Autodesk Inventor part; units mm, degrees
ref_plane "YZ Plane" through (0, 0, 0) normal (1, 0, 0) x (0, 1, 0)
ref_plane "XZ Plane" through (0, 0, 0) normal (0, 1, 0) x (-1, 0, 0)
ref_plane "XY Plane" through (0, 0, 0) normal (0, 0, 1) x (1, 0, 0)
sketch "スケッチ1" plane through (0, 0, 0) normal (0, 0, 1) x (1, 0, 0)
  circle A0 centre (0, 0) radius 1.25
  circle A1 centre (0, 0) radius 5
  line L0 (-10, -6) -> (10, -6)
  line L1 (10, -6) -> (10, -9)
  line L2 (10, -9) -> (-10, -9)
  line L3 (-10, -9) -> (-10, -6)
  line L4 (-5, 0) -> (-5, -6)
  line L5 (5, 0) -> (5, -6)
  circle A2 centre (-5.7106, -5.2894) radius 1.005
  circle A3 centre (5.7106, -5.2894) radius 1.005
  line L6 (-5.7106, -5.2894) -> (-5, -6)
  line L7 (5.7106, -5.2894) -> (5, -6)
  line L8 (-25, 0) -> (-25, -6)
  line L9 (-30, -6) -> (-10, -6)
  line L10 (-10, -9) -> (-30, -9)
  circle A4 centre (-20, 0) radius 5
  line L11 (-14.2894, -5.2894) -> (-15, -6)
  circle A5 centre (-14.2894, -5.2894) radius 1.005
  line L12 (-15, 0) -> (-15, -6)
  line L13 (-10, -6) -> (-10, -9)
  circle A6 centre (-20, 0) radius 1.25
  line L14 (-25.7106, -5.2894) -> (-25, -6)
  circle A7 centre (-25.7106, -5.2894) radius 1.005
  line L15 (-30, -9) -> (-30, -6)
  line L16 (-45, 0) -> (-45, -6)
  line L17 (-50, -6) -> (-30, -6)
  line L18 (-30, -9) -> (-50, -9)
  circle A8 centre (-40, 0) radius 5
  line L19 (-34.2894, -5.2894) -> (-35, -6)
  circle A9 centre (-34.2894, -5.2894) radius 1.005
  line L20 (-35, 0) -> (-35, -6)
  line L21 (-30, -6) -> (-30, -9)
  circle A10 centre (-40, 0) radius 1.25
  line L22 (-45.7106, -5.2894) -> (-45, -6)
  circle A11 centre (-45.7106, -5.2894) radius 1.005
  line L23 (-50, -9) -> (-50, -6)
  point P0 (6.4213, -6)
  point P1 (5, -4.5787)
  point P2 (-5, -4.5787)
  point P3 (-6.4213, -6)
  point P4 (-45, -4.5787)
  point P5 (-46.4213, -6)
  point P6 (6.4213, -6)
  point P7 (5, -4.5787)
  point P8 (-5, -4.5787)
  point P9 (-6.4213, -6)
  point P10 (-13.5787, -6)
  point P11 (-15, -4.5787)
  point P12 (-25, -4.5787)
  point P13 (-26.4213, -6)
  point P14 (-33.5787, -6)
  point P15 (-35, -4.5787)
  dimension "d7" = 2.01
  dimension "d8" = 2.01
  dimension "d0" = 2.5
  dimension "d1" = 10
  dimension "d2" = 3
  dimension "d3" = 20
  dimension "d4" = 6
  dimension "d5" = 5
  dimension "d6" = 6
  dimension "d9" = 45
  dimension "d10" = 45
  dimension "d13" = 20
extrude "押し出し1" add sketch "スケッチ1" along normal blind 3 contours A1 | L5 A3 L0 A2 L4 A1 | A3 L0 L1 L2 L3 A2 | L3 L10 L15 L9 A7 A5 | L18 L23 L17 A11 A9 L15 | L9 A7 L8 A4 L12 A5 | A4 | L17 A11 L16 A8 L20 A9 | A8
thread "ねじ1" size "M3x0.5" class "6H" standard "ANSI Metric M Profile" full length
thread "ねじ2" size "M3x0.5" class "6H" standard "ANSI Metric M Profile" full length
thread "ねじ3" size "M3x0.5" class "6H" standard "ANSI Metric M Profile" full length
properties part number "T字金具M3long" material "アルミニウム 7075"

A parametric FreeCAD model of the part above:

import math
import FreeCAD as App
import Part
import Sketcher
from FreeCAD import Vector

doc = App.newDocument("Part")
params = doc.addObject("Spreadsheet::Sheet", "Params")
for row, (alias, value) in enumerate([
    ("sketch1_radius", "5 mm"),
    ("sketch1_diameter", "2.5 mm"),
    ("sketch1_height", "3 mm"),
    ("pad1_length", "3 mm"),
], start=1):
    params.set(f"A{row}", alias)
    params.set(f"B{row}", "=" + value)
    params.setAlias(f"B{row}", alias)

body = doc.addObject("PartDesign::Body", "Body")

sketch1 = doc.addObject("Sketcher::SketchObject", "Sketch")
body.addObject(sketch1)
sketch1.AttachmentSupport = (doc.XY_Plane, [""])
sketch1.MapMode = "FlatFace"
sketch1.addGeometry(Part.ArcOfCircle(Part.Circle(Vector(0, 0, 0), Vector(0, 0, 1), 5), math.radians(0), math.radians(180)), False)
sketch1.addGeometry(Part.LineSegment(Vector(-5, 0, 0), Vector(-5, -4.6, 0)), False)
sketch1.addGeometry(Part.ArcOfCircle(Part.Circle(Vector(-5.7, -5.3, 0), Vector(0, 0, 1), 1), math.radians(-135), math.radians(45)), False)
sketch1.addGeometry(Part.LineSegment(Vector(-6.4, -6, 0), Vector(-13.6, -6, 0)), False)
sketch1.addGeometry(Part.ArcOfCircle(Part.Circle(Vector(-14.3, -5.3, 0), Vector(0, 0, 1), 1), math.radians(135), math.radians(315)), False)
sketch1.addGeometry(Part.LineSegment(Vector(-15, -4.6, 0), Vector(-15, 0, 0)), False)
sketch1.addGeometry(Part.ArcOfCircle(Part.Circle(Vector(-20, 0, 0), Vector(0, 0, 1), 5), math.radians(0), math.radians(180)), False)
sketch1.addGeometry(Part.LineSegment(Vector(-25, 0, 0), Vector(-25, -4.6, 0)), False)
sketch1.addGeometry(Part.ArcOfCircle(Part.Circle(Vector(-25.7, -5.3, 0), Vector(0, 0, 1), 1), math.radians(-135), math.radians(45)), False)
sketch1.addGeometry(Part.LineSegment(Vector(-26.4, -6, 0), Vector(-33.6, -6, 0)), False)
sketch1.addGeometry(Part.ArcOfCircle(Part.Circle(Vector(-34.3, -5.3, 0), Vector(0, 0, 1), 1), math.radians(135), math.radians(315)), False)
sketch1.addGeometry(Part.LineSegment(Vector(-35, -4.6, 0), Vector(-35, 0, 0)), False)
sketch1.addGeometry(Part.ArcOfCircle(Part.Circle(Vector(-40, 0, 0), Vector(0, 0, 1), 5), math.radians(0), math.radians(180)), False)
sketch1.addGeometry(Part.LineSegment(Vector(-45, 0, 0), Vector(-45, -4.6, 0)), False)
sketch1.addGeometry(Part.ArcOfCircle(Part.Circle(Vector(-45.7, -5.3, 0), Vector(0, 0, 1), 1), math.radians(-135), math.radians(45)), False)
sketch1.addGeometry(Part.LineSegment(Vector(-46.4, -6, 0), Vector(-50, -6, 0)), False)
sketch1.addGeometry(Part.LineSegment(Vector(-50, -6, 0), Vector(-50, -9, 0)), False)
sketch1.addGeometry(Part.LineSegment(Vector(-50, -9, 0), Vector(10, -9, 0)), False)
sketch1.addGeometry(Part.LineSegment(Vector(10, -9, 0), Vector(10, -6, 0)), False)
sketch1.addGeometry(Part.LineSegment(Vector(10, -6, 0), Vector(6.4, -6, 0)), False)
sketch1.addGeometry(Part.ArcOfCircle(Part.Circle(Vector(5.7, -5.3, 0), Vector(0, 0, 1), 1), math.radians(135), math.radians(315)), False)
sketch1.addGeometry(Part.LineSegment(Vector(5, -4.6, 0), Vector(5, 0, 0)), False)
sketch1.addGeometry(Part.Circle(Vector(0, 0, 0), Vector(0, 0, 1), 1.2), False)
sketch1.addGeometry(Part.Circle(Vector(-20, 0, 0), Vector(0, 0, 1), 1.2), False)
sketch1.addGeometry(Part.Circle(Vector(-40, 0, 0), Vector(0, 0, 1), 1.2), False)
sketch1.addConstraint(Sketcher.Constraint("Tangent", 0, 2, 1, 1))
sketch1.addConstraint(Sketcher.Constraint("Coincident", 1, 2, 2, 2))
sketch1.addConstraint(Sketcher.Constraint("Coincident", 2, 1, 3, 1))
sketch1.addConstraint(Sketcher.Constraint("Coincident", 3, 2, 4, 2))
sketch1.addConstraint(Sketcher.Constraint("Coincident", 4, 1, 5, 1))
sketch1.addConstraint(Sketcher.Constraint("Tangent", 5, 2, 6, 1))
sketch1.addConstraint(Sketcher.Constraint("Tangent", 6, 2, 7, 1))
sketch1.addConstraint(Sketcher.Constraint("Coincident", 7, 2, 8, 2))
sketch1.addConstraint(Sketcher.Constraint("Coincident", 8, 1, 9, 1))
sketch1.addConstraint(Sketcher.Constraint("Coincident", 9, 2, 10, 2))
sketch1.addConstraint(Sketcher.Constraint("Coincident", 10, 1, 11, 1))
sketch1.addConstraint(Sketcher.Constraint("Tangent", 11, 2, 12, 1))
sketch1.addConstraint(Sketcher.Constraint("Tangent", 12, 2, 13, 1))
sketch1.addConstraint(Sketcher.Constraint("Coincident", 13, 2, 14, 2))
sketch1.addConstraint(Sketcher.Constraint("Coincident", 14, 1, 15, 1))
sketch1.addConstraint(Sketcher.Constraint("Coincident", 15, 2, 16, 1))
sketch1.addConstraint(Sketcher.Constraint("Coincident", 16, 2, 17, 1))
sketch1.addConstraint(Sketcher.Constraint("Coincident", 17, 2, 18, 1))
sketch1.addConstraint(Sketcher.Constraint("Coincident", 18, 2, 19, 1))
sketch1.addConstraint(Sketcher.Constraint("Coincident", 19, 2, 20, 2))
sketch1.addConstraint(Sketcher.Constraint("Coincident", 20, 1, 21, 1))
sketch1.addConstraint(Sketcher.Constraint("Tangent", 21, 2, 0, 1))
sketch1.addConstraint(Sketcher.Constraint("Vertical", 1))
sketch1.addConstraint(Sketcher.Constraint("Horizontal", 3))
sketch1.addConstraint(Sketcher.Constraint("Vertical", 5))
sketch1.addConstraint(Sketcher.Constraint("Vertical", 7))
sketch1.addConstraint(Sketcher.Constraint("Horizontal", 9))
sketch1.addConstraint(Sketcher.Constraint("Vertical", 11))
sketch1.addConstraint(Sketcher.Constraint("Vertical", 13))
sketch1.addConstraint(Sketcher.Constraint("Horizontal", 15))
sketch1.addConstraint(Sketcher.Constraint("Vertical", 16))
sketch1.addConstraint(Sketcher.Constraint("Horizontal", 17))
sketch1.addConstraint(Sketcher.Constraint("Vertical", 18))
sketch1.addConstraint(Sketcher.Constraint("Horizontal", 19))
sketch1.addConstraint(Sketcher.Constraint("Vertical", 21))
sketch1.addConstraint(Sketcher.Constraint("Coincident", 0, 3, -1, 1))
sketch1.addConstraint(Sketcher.Constraint("Coincident", 22, 3, -1, 1))
sketch1.addConstraint(Sketcher.Constraint("Coincident", 23, 3, 6, 3))
sketch1.addConstraint(Sketcher.Constraint("Coincident", 24, 3, 12, 3))
sketch1.addConstraint(Sketcher.Constraint("Equal", 2, 4))
sketch1.addConstraint(Sketcher.Constraint("Equal", 0, 6))
sketch1.addConstraint(Sketcher.Constraint("Equal", 4, 8))
sketch1.addConstraint(Sketcher.Constraint("Equal", 8, 10))
sketch1.addConstraint(Sketcher.Constraint("Equal", 6, 12))
sketch1.addConstraint(Sketcher.Constraint("Equal", 10, 14))
sketch1.addConstraint(Sketcher.Constraint("Equal", 14, 20))
sketch1.addConstraint(Sketcher.Constraint("Equal", 22, 23))
sketch1.addConstraint(Sketcher.Constraint("Equal", 23, 24))
sketch1.addConstraint(Sketcher.Constraint("Symmetric", 2, 3, 20, 3, -2))
sketch1.addConstraint(Sketcher.Constraint("PointOnObject", 6, 3, -1))
sketch1.addConstraint(Sketcher.Constraint("PointOnObject", 12, 3, -1))
sketch1.addConstraint(Sketcher.Constraint("Horizontal", 2, 3, 4, 3))
sketch1.addConstraint(Sketcher.Constraint("Horizontal", 4, 3, 8, 3))
sketch1.addConstraint(Sketcher.Constraint("Horizontal", 8, 3, 10, 3))
sketch1.addConstraint(Sketcher.Constraint("Horizontal", 10, 3, 14, 3))
sketch1.addConstraint(Sketcher.Constraint("Horizontal", 1, 2, 4, 1))
sketch1.addConstraint(Sketcher.Constraint("Horizontal", 4, 1, 7, 2))
sketch1.addConstraint(Sketcher.Constraint("Horizontal", 3, 2, 8, 1))
sketch1.addConstraint(Sketcher.Constraint("Horizontal", 7, 2, 10, 1))
sketch1.addConstraint(Sketcher.Constraint("Horizontal", 10, 1, 13, 2))
sketch1.addConstraint(Sketcher.Constraint("Horizontal", 9, 2, 14, 1))
sketch1.addConstraint(Sketcher.Constraint("Horizontal", 15, 2, 18, 2))
sketch1.addConstraint(Sketcher.Constraint("Equal", 3, 9))
sketch1.addConstraint(Sketcher.Constraint("Equal", 15, 19))
sketch1.addConstraint(Sketcher.Constraint("Radius", 0, 5.0))
sketch1.addConstraint(Sketcher.Constraint("Diameter", 22, 2.5))
sketch1.addConstraint(Sketcher.Constraint("DistanceY", 16, 2, 16, 1, 3.0))
sketch1.addConstraint(Sketcher.Constraint("DistanceX", 6, 3, -1, 1, 20.0))
sketch1.addConstraint(Sketcher.Constraint("DistanceY", 2, 1, -1, 1, 6.0))
sketch1.addConstraint(Sketcher.Constraint("DistanceX", -1, 1, 17, 2, 10.0))
sketch1.addConstraint(Sketcher.Constraint("Radius", 2, 1.005))
sketch1.addConstraint(Sketcher.Constraint("DistanceX", 3, 2, 3, 1, 7.1574))
sketch1.addConstraint(Sketcher.Constraint("DistanceX", 4, 3, 2, 1, 7.868))
sketch1.setExpression("Constraints[64]", "Params.sketch1_radius")
sketch1.setExpression("Constraints[65]", "Params.sketch1_diameter")
sketch1.setExpression("Constraints[66]", "Params.sketch1_height")
pad1 = doc.addObject("PartDesign::Pad", "Pad")
body.addObject(pad1)
pad1.Profile = sketch1
pad1.setExpression("Length", "Params.pad1_length")

doc.recompute()
